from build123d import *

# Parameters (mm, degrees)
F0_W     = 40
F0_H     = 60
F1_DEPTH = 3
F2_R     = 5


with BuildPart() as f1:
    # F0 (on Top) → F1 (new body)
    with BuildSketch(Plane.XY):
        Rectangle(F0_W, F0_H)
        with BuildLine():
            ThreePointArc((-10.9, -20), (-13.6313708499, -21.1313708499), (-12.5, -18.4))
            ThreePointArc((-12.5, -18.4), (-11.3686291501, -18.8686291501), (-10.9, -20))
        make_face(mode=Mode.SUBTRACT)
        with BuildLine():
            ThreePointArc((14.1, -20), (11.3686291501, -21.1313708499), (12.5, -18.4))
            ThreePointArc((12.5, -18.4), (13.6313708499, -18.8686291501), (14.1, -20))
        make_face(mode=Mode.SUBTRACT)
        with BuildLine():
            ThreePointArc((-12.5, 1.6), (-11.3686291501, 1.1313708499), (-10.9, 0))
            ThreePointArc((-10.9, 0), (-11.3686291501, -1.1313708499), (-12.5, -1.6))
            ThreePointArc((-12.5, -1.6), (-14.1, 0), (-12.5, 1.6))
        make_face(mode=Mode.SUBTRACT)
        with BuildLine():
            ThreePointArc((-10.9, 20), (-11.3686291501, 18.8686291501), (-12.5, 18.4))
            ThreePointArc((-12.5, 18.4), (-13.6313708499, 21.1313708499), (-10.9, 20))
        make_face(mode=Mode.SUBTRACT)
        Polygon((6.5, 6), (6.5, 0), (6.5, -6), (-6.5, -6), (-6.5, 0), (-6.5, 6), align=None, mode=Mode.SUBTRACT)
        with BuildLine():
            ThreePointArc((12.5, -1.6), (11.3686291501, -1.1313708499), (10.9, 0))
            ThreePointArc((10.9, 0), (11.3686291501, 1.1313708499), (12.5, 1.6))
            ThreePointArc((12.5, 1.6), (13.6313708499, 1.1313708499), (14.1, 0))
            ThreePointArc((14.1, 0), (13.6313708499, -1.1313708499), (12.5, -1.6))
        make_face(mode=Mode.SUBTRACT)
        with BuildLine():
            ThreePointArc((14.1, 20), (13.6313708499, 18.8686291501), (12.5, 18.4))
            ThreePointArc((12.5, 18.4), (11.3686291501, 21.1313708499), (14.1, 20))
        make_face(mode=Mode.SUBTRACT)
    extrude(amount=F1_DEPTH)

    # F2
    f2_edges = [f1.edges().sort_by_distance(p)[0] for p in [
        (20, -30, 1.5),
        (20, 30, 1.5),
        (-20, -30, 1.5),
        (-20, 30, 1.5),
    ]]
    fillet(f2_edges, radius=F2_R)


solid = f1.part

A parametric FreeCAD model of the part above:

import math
import FreeCAD as App
import Part
import Sketcher

V = App.Vector
Q = App.Units.Quantity


def edges_at(feature, points):
    """Names of the edges that pass closest to the given points."""
    edges = feature.Shape.Edges
    near = lambda p: min(range(len(edges)), key=lambda i: edges[i].distToShape(Part.Vertex(*p))[0])
    return sorted({f"Edge{near(p) + 1}" for p in points})


def add_polygon(sketch, points):
    """Adds a closed chain of lines whose ends are joined by coincident constraints."""
    first, n = sketch.GeometryCount, len(points)
    for a, b in zip(points, points[1:] + points[:1]):
        sketch.addGeometry(Part.LineSegment(App.Vector(*a, 0), App.Vector(*b, 0)), False)
    for i in range(n):
        sketch.addConstraint(Sketcher.Constraint("Coincident", first + i, 2, first + (i + 1) % n, 1))

doc = App.newDocument("Part")
body = doc.addObject("PartDesign::Body", "Body")

sketch1 = body.newObject("Sketcher::SketchObject", "Sketch")
sketch1.AttachmentSupport = (doc.getObject("XY_Plane"), [""])
sketch1.MapMode = "FlatFace"
add_polygon(sketch1, [(-20, 30), (-20, -30), (20, -30), (20, 30)])
sketch1.addGeometry(Part.ArcOfCircle(Part.Circle(V(-12.5, -20, 0), V(0, 0, 1), 1.6), math.radians(0), math.radians(90)), False)
sketch1.addGeometry(Part.ArcOfCircle(Part.Circle(V(-12.5, -20, 0), V(0, 0, 1), 1.6), math.radians(90), math.radians(360)), False)
sketch1.addGeometry(Part.ArcOfCircle(Part.Circle(V(12.5, -20, 0), V(0, 0, 1), 1.6), math.radians(0), math.radians(90)), False)
sketch1.addGeometry(Part.ArcOfCircle(Part.Circle(V(12.5, -20, 0), V(0, 0, 1), 1.6), math.radians(90), math.radians(360)), False)
sketch1.addGeometry(Part.ArcOfCircle(Part.Circle(V(-12.5, 0, 0), V(0, 0, 1), 1.6), math.radians(90), math.radians(270)), False)
sketch1.addGeometry(Part.ArcOfCircle(Part.Circle(V(-12.5, 0, 0), V(0, 0, 1), 1.6), math.radians(0), math.radians(90)), False)
sketch1.addGeometry(Part.ArcOfCircle(Part.Circle(V(-12.5, 0, 0), V(0, 0, 1), 1.6), math.radians(-90), math.radians(0)), False)
sketch1.addGeometry(Part.ArcOfCircle(Part.Circle(V(-12.5, 20, 0), V(0, 0, 1), 1.6), math.radians(0), math.radians(270)), False)
sketch1.addGeometry(Part.ArcOfCircle(Part.Circle(V(-12.5, 20, 0), V(0, 0, 1), 1.6), math.radians(-90), math.radians(0)), False)
add_polygon(sketch1, [(-6.5, 6), (6.5, 6), (6.5, -6), (-6.5, -6)])
sketch1.addGeometry(Part.ArcOfCircle(Part.Circle(V(12.5, 0, 0), V(0, 0, 1), 1.6), math.radians(-90), math.radians(0)), False)
sketch1.addGeometry(Part.ArcOfCircle(Part.Circle(V(12.5, 0, 0), V(0, 0, 1), 1.6), math.radians(180), math.radians(270)), False)
sketch1.addGeometry(Part.ArcOfCircle(Part.Circle(V(12.5, 0, 0), V(0, 0, 1), 1.6), math.radians(90), math.radians(180)), False)
sketch1.addGeometry(Part.ArcOfCircle(Part.Circle(V(12.5, 0, 0), V(0, 0, 1), 1.6), math.radians(0), math.radians(90)), False)
sketch1.addGeometry(Part.ArcOfCircle(Part.Circle(V(12.5, 20, 0), V(0, 0, 1), 1.6), math.radians(0), math.radians(270)), False)
sketch1.addGeometry(Part.ArcOfCircle(Part.Circle(V(12.5, 20, 0), V(0, 0, 1), 1.6), math.radians(-90), math.radians(0)), False)
sketch1.addConstraint([
    Sketcher.Constraint("Tangent", 4, 1, 5, 2),
    Sketcher.Constraint("Coincident", 5, 1, 4, 2),
    Sketcher.Constraint("Tangent", 6, 1, 7, 2),
    Sketcher.Constraint("Coincident", 7, 1, 6, 2),
    Sketcher.Constraint("Tangent", 8, 1, 9, 2),
    Sketcher.Constraint("Tangent", 9, 1, 10, 2),
    Sketcher.Constraint("Tangent", 10, 1, 8, 2),
    Sketcher.Constraint("Tangent", 11, 1, 12, 2),
    Sketcher.Constraint("Coincident", 12, 1, 11, 2),
    Sketcher.Constraint("Tangent", 17, 1, 18, 2),
    Sketcher.Constraint("Tangent", 18, 1, 19, 2),
    Sketcher.Constraint("Tangent", 19, 1, 20, 2),
    Sketcher.Constraint("Tangent", 20, 1, 17, 2),
    Sketcher.Constraint("Tangent", 21, 1, 22, 2),
    Sketcher.Constraint("Coincident", 22, 1, 21, 2),
    Sketcher.Constraint("Vertical", 0),
    Sketcher.Constraint("Horizontal", 1),
    Sketcher.Constraint("Vertical", 2),
    Sketcher.Constraint("Horizontal", 3),
    Sketcher.Constraint("Horizontal", 13),
    Sketcher.Constraint("Vertical", 14),
    Sketcher.Constraint("Horizontal", 15),
    Sketcher.Constraint("Vertical", 16),
    Sketcher.Constraint("Equal", 5, 6),
    Sketcher.Constraint("Equal", 7, 8),
    Sketcher.Constraint("Equal", 10, 11),
    Sketcher.Constraint("Equal", 12, 17),
    Sketcher.Constraint("Equal", 17, 18),
    Sketcher.Constraint("Equal", 20, 21),
    Sketcher.Constraint("Symmetric", 6, 3, 11, 3, -1, 1),
    Sketcher.Constraint("Symmetric", 8, 3, 17, 3, -1, 1),
    Sketcher.Constraint("Symmetric", 4, 3, 21, 3, -1, 1),
    Sketcher.Constraint("Symmetric", 0, 2, 2, 2, -1, 1),
    Sketcher.Constraint("Symmetric", 13, 2, 15, 2, -1, 1),
    Sketcher.Constraint("Symmetric", 4, 3, 6, 3, -2),
    Sketcher.Constraint("Symmetric", 10, 1, 17, 1, -2),
    Sketcher.Constraint("PointOnObject", 9, 1, -1),
    Sketcher.Constraint("PointOnObject", 18, 1, -1),
    Sketcher.Constraint("PointOnObject", 20, 1, -1),
    Sketcher.Constraint("Horizontal", 7, 3, 4, 1),
    Sketcher.Constraint("Horizontal", 4, 1, 6, 1),
    Sketcher.Constraint("Horizontal", 22, 3, 11, 1),
    Sketcher.Constraint("Horizontal", 11, 1, 21, 1),
    Sketcher.Constraint("Vertical", 5, 3, 8, 3),
    Sketcher.Constraint("Vertical", 12, 3, 5, 1),
    Sketcher.Constraint("Vertical", 22, 3, 7, 1),
    Sketcher.Constraint("Vertical", 5, 1, 8, 1),
    Sketcher.Constraint("Vertical", 8, 1, 10, 1),
    Sketcher.Constraint("Vertical", 10, 1, 12, 1),
    Sketcher.Constraint("Vertical", 17, 1, 19, 1),
    Sketcher.Constraint("Vertical", 19, 1, 22, 1),
    Sketcher.Constraint("Radius", 4, Q("1.6 mm")),
    Sketcher.Constraint("DistanceX", 1, 1, 1, 2, Q("40 mm")),
    Sketcher.Constraint("DistanceX", 13, 1, 13, 2, Q("13 mm")),
    Sketcher.Constraint("DistanceY", 0, 2, 0, 1, Q("60 mm")),
    Sketcher.Constraint("DistanceY", 14, 2, 14, 1, Q("12 mm")),
    Sketcher.Constraint("DistanceY", 4, 3, -1, 1, Q("20 mm")),
    Sketcher.Constraint("DistanceX", 4, 3, 6, 3, Q("25 mm")),
])
pad1 = body.newObject("PartDesign::Pad", "Pad")
pad1.Profile = sketch1
pad1.Length = 3
doc.recompute()

fillet = body.newObject("PartDesign::Fillet", "Fillet")
fillet.Base = (pad1, edges_at(pad1, [
    (20, -30, 1.5),
    (20, 30, 1.5),
    (-20, -30, 1.5),
    (-20, 30, 1.5),
]))
fillet.Radius = 5

doc.recompute()
